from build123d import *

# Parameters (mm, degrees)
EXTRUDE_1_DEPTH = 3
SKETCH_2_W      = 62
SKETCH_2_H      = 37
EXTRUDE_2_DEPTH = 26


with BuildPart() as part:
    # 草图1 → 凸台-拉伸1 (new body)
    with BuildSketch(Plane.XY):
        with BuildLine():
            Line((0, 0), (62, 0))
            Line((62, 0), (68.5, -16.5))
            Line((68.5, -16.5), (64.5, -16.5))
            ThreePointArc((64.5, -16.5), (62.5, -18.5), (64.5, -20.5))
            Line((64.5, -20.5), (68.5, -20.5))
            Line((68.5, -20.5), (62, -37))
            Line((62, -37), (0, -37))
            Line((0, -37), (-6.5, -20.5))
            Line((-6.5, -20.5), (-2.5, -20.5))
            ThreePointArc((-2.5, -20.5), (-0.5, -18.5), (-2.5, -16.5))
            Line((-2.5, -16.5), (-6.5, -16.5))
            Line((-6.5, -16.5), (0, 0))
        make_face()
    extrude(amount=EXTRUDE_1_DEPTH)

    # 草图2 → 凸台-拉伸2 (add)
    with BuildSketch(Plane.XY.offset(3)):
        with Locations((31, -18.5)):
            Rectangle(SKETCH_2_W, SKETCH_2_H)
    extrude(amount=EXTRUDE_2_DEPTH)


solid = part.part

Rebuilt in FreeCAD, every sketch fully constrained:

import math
import FreeCAD as App
import Part
import Sketcher


def add_polygon(sketch, points):
    """Adds a closed chain of lines whose ends are joined by coincident constraints."""
    first, n = sketch.GeometryCount, len(points)
    for a, b in zip(points, points[1:] + points[:1]):
        sketch.addGeometry(Part.LineSegment(App.Vector(*a, 0), App.Vector(*b, 0)), False)
    for i in range(n):
        sketch.addConstraint(Sketcher.Constraint("Coincident", first + i, 2, first + (i + 1) % n, 1))

doc = App.newDocument("Part")
body = doc.addObject("PartDesign::Body", "Body")

# Sketch on XY plane
sketch1 = doc.addObject("Sketcher::SketchObject", "Sketch")
body.addObject(sketch1)
sketch1.AttachmentSupport = (doc.XY_Plane, [""])
sketch1.MapMode = "FlatFace"
sketch1.addGeometry(Part.LineSegment(App.Vector(62, 0, 0), App.Vector(0, 0, 0)), False)
sketch1.addGeometry(Part.LineSegment(App.Vector(0, 0, 0), App.Vector(-6.5, -16.5, 0)), False)
sketch1.addGeometry(Part.LineSegment(App.Vector(-6.5, -16.5, 0), App.Vector(-2.5, -16.5, 0)), False)
sketch1.addGeometry(Part.ArcOfCircle(Part.Circle(App.Vector(-2.5, -18.5, 0), App.Vector(0, 0, 1), 2), math.radians(-90), math.radians(90)), False)
sketch1.addGeometry(Part.LineSegment(App.Vector(-2.5, -20.5, 0), App.Vector(-6.5, -20.5, 0)), False)
sketch1.addGeometry(Part.LineSegment(App.Vector(-6.5, -20.5, 0), App.Vector(0, -37, 0)), False)
sketch1.addGeometry(Part.LineSegment(App.Vector(0, -37, 0), App.Vector(62, -37, 0)), False)
sketch1.addGeometry(Part.LineSegment(App.Vector(62, -37, 0), App.Vector(68.5, -20.5, 0)), False)
sketch1.addGeometry(Part.LineSegment(App.Vector(68.5, -20.5, 0), App.Vector(64.5, -20.5, 0)), False)
sketch1.addGeometry(Part.ArcOfCircle(Part.Circle(App.Vector(64.5, -18.5, 0), App.Vector(0, 0, 1), 2), math.radians(90), math.radians(270)), False)
sketch1.addGeometry(Part.LineSegment(App.Vector(64.5, -16.5, 0), App.Vector(68.5, -16.5, 0)), False)
sketch1.addGeometry(Part.LineSegment(App.Vector(68.5, -16.5, 0), App.Vector(62, 0, 0)), False)
sketch1.addConstraint(Sketcher.Constraint("Coincident", 0, 2, 1, 1))
sketch1.addConstraint(Sketcher.Constraint("Coincident", 1, 2, 2, 1))
sketch1.addConstraint(Sketcher.Constraint("Tangent", 2, 2, 3, 2))
sketch1.addConstraint(Sketcher.Constraint("Tangent", 3, 1, 4, 1))
sketch1.addConstraint(Sketcher.Constraint("Coincident", 4, 2, 5, 1))
sketch1.addConstraint(Sketcher.Constraint("Coincident", 5, 2, 6, 1))
sketch1.addConstraint(Sketcher.Constraint("Coincident", 6, 2, 7, 1))
sketch1.addConstraint(Sketcher.Constraint("Coincident", 7, 2, 8, 1))
sketch1.addConstraint(Sketcher.Constraint("Tangent", 8, 2, 9, 2))
sketch1.addConstraint(Sketcher.Constraint("Tangent", 9, 1, 10, 1))
sketch1.addConstraint(Sketcher.Constraint("Coincident", 10, 2, 11, 1))
sketch1.addConstraint(Sketcher.Constraint("Coincident", 11, 2, 0, 1))
sketch1.addConstraint(Sketcher.Constraint("Horizontal", 0))
sketch1.addConstraint(Sketcher.Constraint("Horizontal", 2))
sketch1.addConstraint(Sketcher.Constraint("Horizontal", 4))
sketch1.addConstraint(Sketcher.Constraint("Horizontal", 6))
sketch1.addConstraint(Sketcher.Constraint("Horizontal", 8))
sketch1.addConstraint(Sketcher.Constraint("Horizontal", 10))
sketch1.addConstraint(Sketcher.Constraint("Coincident", 0, 2, -1, 1))
sketch1.addConstraint(Sketcher.Constraint("Equal", 3, 9))
sketch1.addConstraint(Sketcher.Constraint("PointOnObject", 5, 2, -2))
sketch1.addConstraint(Sketcher.Constraint("Parallel", 1, 7))
sketch1.addConstraint(Sketcher.Constraint("Parallel", 5, 11))
sketch1.addConstraint(Sketcher.Constraint("Horizontal", 3, 3, 9, 3))
sketch1.addConstraint(Sketcher.Constraint("Vertical", 1, 2, 4, 2))
sketch1.addConstraint(Sketcher.Constraint("Vertical", 7, 2, 10, 2))
sketch1.addConstraint(Sketcher.Constraint("Vertical", 6, 2, 11, 2))
sketch1.addConstraint(Sketcher.Constraint("Equal", 4, 8))
sketch1.addConstraint(Sketcher.Constraint("Radius", 3, 2.0))
sketch1.addConstraint(Sketcher.Constraint("DistanceX", 0, 2, 0, 1, 62.0))
sketch1.addConstraint(Sketcher.Constraint("DistanceX", 2, 1, 2, 2, 4.0))
sketch1.addConstraint(Sketcher.Constraint("DistanceY", 5, 2, -1, 1, 37.0))
sketch1.addConstraint(Sketcher.Constraint("DistanceX", 3, 3, 9, 3, 67.0))
pad1 = doc.addObject("PartDesign::Pad", "Pad")
body.addObject(pad1)
pad1.Profile = sketch1
pad1.Length = 3

# Sketch on XY plane
sketch2 = doc.addObject("Sketcher::SketchObject", "Sketch001")
body.addObject(sketch2)
sketch2.AttachmentSupport = (doc.XY_Plane, [""])
sketch2.MapMode = "FlatFace"
sketch2.AttachmentOffset = App.Placement(App.Vector(0, 0, 3), App.Rotation())
add_polygon(sketch2, [(0, 0), (0, -37), (62, -37), (62, 0)])  # lines 0-3
sketch2.addConstraint(Sketcher.Constraint("Vertical", 0))
sketch2.addConstraint(Sketcher.Constraint("Horizontal", 1))
sketch2.addConstraint(Sketcher.Constraint("Vertical", 2))
sketch2.addConstraint(Sketcher.Constraint("Horizontal", 3))
sketch2.addConstraint(Sketcher.Constraint("Coincident", 3, 2, -1, 1))
sketch2.addConstraint(Sketcher.Constraint("DistanceX", 1, 1, 1, 2, 62.0))
sketch2.addConstraint(Sketcher.Constraint("DistanceY", 0, 2, 0, 1, 37.0))
pad2 = doc.addObject("PartDesign::Pad", "Pad001")
body.addObject(pad2)
pad2.Profile = sketch2
pad2.Length = 26

doc.recompute()
